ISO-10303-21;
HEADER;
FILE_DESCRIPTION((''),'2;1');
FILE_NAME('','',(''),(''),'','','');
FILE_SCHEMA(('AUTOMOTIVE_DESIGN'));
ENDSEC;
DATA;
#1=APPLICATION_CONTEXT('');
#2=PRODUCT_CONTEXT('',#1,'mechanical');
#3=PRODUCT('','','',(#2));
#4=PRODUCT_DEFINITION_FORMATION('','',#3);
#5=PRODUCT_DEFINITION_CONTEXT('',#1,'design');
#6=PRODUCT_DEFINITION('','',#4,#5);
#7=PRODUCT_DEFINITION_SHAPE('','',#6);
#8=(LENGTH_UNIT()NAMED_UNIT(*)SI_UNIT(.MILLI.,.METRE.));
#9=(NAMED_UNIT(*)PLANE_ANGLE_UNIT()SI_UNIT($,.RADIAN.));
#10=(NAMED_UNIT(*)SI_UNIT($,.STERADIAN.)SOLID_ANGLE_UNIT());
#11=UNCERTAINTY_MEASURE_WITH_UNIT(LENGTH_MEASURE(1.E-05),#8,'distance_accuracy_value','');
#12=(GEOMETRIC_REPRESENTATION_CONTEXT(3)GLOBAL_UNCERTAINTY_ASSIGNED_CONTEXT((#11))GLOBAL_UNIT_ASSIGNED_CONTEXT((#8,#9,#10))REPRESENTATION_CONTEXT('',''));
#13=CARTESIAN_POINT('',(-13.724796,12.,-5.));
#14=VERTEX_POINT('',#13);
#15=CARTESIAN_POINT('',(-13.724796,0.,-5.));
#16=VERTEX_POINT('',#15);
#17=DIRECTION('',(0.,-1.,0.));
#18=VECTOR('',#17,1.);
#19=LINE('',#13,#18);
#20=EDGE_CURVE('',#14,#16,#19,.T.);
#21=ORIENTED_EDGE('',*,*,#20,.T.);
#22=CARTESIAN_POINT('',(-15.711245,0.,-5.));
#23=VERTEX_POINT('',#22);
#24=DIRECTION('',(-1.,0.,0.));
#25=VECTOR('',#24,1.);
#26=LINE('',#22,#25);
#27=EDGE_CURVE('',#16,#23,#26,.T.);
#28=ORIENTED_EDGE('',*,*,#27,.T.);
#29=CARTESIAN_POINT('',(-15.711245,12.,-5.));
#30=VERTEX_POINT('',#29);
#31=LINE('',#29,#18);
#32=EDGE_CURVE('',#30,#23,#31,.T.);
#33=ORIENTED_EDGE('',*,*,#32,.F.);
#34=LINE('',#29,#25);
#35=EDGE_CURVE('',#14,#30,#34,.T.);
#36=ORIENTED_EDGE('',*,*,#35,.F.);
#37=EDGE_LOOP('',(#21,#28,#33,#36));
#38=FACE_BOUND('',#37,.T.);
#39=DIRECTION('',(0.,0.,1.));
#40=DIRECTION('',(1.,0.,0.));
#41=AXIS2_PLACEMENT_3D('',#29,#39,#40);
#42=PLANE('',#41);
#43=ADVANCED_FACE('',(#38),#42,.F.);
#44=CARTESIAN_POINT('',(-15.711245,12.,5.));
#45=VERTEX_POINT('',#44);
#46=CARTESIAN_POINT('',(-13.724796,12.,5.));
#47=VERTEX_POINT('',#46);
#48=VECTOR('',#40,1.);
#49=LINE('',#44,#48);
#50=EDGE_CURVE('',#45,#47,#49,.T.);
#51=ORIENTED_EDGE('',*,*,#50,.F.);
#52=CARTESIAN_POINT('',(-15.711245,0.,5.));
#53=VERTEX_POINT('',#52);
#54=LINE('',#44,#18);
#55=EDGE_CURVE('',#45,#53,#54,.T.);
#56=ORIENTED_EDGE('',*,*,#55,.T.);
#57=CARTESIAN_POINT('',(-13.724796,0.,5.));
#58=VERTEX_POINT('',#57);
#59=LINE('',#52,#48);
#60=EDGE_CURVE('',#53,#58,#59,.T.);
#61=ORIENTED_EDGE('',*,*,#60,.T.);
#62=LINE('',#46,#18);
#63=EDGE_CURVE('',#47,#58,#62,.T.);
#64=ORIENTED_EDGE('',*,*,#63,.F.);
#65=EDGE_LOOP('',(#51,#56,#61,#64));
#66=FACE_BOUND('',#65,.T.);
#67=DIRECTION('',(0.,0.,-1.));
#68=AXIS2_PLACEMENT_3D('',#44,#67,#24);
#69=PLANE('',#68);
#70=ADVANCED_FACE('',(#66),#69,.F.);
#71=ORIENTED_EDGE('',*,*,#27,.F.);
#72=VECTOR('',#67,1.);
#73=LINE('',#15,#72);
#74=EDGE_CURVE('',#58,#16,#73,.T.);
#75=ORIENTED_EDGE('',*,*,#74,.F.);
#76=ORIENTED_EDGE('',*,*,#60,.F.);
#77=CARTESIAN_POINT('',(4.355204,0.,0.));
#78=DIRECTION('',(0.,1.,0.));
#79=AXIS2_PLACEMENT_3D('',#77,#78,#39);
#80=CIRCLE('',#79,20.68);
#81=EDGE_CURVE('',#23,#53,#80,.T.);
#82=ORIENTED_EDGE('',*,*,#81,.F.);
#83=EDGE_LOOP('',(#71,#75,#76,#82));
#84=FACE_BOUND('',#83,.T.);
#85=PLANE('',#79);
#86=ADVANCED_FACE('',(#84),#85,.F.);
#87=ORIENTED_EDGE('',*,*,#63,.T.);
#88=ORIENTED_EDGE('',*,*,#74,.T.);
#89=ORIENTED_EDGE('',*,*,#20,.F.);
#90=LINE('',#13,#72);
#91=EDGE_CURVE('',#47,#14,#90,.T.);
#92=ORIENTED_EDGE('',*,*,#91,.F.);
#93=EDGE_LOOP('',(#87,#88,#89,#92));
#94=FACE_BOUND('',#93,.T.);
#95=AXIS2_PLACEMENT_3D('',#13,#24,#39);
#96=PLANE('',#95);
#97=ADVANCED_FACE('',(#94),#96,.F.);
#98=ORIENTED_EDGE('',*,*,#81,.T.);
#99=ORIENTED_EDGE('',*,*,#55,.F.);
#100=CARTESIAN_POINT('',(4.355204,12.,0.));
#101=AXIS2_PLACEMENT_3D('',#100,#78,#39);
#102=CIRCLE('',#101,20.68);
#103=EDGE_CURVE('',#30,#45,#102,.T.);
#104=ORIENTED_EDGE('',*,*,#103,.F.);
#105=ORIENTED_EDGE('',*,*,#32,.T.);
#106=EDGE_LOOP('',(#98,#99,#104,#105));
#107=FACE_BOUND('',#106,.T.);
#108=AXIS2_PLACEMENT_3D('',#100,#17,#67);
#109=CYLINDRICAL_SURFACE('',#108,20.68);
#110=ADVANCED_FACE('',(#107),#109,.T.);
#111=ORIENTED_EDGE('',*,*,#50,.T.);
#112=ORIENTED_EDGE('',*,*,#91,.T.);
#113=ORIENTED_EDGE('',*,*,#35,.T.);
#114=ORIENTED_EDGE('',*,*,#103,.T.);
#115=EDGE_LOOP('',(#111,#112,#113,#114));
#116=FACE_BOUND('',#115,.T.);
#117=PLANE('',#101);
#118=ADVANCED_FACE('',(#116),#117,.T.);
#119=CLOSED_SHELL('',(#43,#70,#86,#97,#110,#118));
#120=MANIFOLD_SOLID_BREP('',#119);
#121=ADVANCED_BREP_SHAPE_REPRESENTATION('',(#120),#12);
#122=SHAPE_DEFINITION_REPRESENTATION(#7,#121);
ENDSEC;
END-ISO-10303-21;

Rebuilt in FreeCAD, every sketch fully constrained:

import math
import FreeCAD as App
import Part
import Sketcher

doc = App.newDocument("Part")
params = doc.addObject("Spreadsheet::Sheet", "Params")
for row, (alias, value) in enumerate([
    ("sketch1_height", "10 mm"),
    ("sketch1_radius", "20.68 mm"),
    ("pad1_length", "12 mm"),
], start=1):
    params.set(f"A{row}", alias)
    params.set(f"B{row}", "=" + value)
    params.setAlias(f"B{row}", alias)

body = doc.addObject("PartDesign::Body", "Body")

sketch1 = body.newObject("Sketcher::SketchObject", "Sketch")
sketch1.AttachmentSupport = (doc.getObject("XZ_Plane"), [""])
sketch1.MapMode = "FlatFace"
sketch1.addGeometry(Part.LineSegment(App.Vector(-13.7, -5, 0), App.Vector(-15.7, -5, 0)), False)
sketch1.addGeometry(Part.ArcOfCircle(Part.Circle(App.Vector(4.4, 0, 0), App.Vector(0, 0, 1), 20.7), math.radians(166), math.radians(194)), False)
sketch1.addGeometry(Part.LineSegment(App.Vector(-15.7, 5, 0), App.Vector(-13.7, 5, 0)), False)
sketch1.addGeometry(Part.LineSegment(App.Vector(-13.7, 5, 0), App.Vector(-13.7, -5, 0)), False)
sketch1.addConstraint(Sketcher.Constraint("Coincident", 0, 2, 1, 2))
sketch1.addConstraint(Sketcher.Constraint("Coincident", 1, 1, 2, 1))
sketch1.addConstraint(Sketcher.Constraint("Coincident", 2, 2, 3, 1))
sketch1.addConstraint(Sketcher.Constraint("Coincident", 3, 2, 0, 1))
sketch1.addConstraint(Sketcher.Constraint("Horizontal", 0))
sketch1.addConstraint(Sketcher.Constraint("Horizontal", 2))
sketch1.addConstraint(Sketcher.Constraint("Vertical", 3))
sketch1.addConstraint(Sketcher.Constraint("Symmetric", 0, 2, 1, 1, -1))
sketch1.addConstraint(Sketcher.Constraint("DistanceY", 3, 2, 3, 1, 10.0))
sketch1.addConstraint(Sketcher.Constraint("Radius", 1, 20.68))
sketch1.addConstraint(Sketcher.Constraint("DistanceX", 2, 2, 1, 3, 18.08))
sketch1.addConstraint(Sketcher.Constraint("DistanceX", -1, 1, 1, 3, 4.355204))
sketch1.setExpression("Constraints[8]", "Params.sketch1_height")
sketch1.setExpression("Constraints[9]", "Params.sketch1_radius")
pad1 = body.newObject("PartDesign::Pad", "Pad")
pad1.Profile = sketch1
pad1.setExpression("Length", "Params.pad1_length")
pad1.Reversed = True

doc.recompute()
